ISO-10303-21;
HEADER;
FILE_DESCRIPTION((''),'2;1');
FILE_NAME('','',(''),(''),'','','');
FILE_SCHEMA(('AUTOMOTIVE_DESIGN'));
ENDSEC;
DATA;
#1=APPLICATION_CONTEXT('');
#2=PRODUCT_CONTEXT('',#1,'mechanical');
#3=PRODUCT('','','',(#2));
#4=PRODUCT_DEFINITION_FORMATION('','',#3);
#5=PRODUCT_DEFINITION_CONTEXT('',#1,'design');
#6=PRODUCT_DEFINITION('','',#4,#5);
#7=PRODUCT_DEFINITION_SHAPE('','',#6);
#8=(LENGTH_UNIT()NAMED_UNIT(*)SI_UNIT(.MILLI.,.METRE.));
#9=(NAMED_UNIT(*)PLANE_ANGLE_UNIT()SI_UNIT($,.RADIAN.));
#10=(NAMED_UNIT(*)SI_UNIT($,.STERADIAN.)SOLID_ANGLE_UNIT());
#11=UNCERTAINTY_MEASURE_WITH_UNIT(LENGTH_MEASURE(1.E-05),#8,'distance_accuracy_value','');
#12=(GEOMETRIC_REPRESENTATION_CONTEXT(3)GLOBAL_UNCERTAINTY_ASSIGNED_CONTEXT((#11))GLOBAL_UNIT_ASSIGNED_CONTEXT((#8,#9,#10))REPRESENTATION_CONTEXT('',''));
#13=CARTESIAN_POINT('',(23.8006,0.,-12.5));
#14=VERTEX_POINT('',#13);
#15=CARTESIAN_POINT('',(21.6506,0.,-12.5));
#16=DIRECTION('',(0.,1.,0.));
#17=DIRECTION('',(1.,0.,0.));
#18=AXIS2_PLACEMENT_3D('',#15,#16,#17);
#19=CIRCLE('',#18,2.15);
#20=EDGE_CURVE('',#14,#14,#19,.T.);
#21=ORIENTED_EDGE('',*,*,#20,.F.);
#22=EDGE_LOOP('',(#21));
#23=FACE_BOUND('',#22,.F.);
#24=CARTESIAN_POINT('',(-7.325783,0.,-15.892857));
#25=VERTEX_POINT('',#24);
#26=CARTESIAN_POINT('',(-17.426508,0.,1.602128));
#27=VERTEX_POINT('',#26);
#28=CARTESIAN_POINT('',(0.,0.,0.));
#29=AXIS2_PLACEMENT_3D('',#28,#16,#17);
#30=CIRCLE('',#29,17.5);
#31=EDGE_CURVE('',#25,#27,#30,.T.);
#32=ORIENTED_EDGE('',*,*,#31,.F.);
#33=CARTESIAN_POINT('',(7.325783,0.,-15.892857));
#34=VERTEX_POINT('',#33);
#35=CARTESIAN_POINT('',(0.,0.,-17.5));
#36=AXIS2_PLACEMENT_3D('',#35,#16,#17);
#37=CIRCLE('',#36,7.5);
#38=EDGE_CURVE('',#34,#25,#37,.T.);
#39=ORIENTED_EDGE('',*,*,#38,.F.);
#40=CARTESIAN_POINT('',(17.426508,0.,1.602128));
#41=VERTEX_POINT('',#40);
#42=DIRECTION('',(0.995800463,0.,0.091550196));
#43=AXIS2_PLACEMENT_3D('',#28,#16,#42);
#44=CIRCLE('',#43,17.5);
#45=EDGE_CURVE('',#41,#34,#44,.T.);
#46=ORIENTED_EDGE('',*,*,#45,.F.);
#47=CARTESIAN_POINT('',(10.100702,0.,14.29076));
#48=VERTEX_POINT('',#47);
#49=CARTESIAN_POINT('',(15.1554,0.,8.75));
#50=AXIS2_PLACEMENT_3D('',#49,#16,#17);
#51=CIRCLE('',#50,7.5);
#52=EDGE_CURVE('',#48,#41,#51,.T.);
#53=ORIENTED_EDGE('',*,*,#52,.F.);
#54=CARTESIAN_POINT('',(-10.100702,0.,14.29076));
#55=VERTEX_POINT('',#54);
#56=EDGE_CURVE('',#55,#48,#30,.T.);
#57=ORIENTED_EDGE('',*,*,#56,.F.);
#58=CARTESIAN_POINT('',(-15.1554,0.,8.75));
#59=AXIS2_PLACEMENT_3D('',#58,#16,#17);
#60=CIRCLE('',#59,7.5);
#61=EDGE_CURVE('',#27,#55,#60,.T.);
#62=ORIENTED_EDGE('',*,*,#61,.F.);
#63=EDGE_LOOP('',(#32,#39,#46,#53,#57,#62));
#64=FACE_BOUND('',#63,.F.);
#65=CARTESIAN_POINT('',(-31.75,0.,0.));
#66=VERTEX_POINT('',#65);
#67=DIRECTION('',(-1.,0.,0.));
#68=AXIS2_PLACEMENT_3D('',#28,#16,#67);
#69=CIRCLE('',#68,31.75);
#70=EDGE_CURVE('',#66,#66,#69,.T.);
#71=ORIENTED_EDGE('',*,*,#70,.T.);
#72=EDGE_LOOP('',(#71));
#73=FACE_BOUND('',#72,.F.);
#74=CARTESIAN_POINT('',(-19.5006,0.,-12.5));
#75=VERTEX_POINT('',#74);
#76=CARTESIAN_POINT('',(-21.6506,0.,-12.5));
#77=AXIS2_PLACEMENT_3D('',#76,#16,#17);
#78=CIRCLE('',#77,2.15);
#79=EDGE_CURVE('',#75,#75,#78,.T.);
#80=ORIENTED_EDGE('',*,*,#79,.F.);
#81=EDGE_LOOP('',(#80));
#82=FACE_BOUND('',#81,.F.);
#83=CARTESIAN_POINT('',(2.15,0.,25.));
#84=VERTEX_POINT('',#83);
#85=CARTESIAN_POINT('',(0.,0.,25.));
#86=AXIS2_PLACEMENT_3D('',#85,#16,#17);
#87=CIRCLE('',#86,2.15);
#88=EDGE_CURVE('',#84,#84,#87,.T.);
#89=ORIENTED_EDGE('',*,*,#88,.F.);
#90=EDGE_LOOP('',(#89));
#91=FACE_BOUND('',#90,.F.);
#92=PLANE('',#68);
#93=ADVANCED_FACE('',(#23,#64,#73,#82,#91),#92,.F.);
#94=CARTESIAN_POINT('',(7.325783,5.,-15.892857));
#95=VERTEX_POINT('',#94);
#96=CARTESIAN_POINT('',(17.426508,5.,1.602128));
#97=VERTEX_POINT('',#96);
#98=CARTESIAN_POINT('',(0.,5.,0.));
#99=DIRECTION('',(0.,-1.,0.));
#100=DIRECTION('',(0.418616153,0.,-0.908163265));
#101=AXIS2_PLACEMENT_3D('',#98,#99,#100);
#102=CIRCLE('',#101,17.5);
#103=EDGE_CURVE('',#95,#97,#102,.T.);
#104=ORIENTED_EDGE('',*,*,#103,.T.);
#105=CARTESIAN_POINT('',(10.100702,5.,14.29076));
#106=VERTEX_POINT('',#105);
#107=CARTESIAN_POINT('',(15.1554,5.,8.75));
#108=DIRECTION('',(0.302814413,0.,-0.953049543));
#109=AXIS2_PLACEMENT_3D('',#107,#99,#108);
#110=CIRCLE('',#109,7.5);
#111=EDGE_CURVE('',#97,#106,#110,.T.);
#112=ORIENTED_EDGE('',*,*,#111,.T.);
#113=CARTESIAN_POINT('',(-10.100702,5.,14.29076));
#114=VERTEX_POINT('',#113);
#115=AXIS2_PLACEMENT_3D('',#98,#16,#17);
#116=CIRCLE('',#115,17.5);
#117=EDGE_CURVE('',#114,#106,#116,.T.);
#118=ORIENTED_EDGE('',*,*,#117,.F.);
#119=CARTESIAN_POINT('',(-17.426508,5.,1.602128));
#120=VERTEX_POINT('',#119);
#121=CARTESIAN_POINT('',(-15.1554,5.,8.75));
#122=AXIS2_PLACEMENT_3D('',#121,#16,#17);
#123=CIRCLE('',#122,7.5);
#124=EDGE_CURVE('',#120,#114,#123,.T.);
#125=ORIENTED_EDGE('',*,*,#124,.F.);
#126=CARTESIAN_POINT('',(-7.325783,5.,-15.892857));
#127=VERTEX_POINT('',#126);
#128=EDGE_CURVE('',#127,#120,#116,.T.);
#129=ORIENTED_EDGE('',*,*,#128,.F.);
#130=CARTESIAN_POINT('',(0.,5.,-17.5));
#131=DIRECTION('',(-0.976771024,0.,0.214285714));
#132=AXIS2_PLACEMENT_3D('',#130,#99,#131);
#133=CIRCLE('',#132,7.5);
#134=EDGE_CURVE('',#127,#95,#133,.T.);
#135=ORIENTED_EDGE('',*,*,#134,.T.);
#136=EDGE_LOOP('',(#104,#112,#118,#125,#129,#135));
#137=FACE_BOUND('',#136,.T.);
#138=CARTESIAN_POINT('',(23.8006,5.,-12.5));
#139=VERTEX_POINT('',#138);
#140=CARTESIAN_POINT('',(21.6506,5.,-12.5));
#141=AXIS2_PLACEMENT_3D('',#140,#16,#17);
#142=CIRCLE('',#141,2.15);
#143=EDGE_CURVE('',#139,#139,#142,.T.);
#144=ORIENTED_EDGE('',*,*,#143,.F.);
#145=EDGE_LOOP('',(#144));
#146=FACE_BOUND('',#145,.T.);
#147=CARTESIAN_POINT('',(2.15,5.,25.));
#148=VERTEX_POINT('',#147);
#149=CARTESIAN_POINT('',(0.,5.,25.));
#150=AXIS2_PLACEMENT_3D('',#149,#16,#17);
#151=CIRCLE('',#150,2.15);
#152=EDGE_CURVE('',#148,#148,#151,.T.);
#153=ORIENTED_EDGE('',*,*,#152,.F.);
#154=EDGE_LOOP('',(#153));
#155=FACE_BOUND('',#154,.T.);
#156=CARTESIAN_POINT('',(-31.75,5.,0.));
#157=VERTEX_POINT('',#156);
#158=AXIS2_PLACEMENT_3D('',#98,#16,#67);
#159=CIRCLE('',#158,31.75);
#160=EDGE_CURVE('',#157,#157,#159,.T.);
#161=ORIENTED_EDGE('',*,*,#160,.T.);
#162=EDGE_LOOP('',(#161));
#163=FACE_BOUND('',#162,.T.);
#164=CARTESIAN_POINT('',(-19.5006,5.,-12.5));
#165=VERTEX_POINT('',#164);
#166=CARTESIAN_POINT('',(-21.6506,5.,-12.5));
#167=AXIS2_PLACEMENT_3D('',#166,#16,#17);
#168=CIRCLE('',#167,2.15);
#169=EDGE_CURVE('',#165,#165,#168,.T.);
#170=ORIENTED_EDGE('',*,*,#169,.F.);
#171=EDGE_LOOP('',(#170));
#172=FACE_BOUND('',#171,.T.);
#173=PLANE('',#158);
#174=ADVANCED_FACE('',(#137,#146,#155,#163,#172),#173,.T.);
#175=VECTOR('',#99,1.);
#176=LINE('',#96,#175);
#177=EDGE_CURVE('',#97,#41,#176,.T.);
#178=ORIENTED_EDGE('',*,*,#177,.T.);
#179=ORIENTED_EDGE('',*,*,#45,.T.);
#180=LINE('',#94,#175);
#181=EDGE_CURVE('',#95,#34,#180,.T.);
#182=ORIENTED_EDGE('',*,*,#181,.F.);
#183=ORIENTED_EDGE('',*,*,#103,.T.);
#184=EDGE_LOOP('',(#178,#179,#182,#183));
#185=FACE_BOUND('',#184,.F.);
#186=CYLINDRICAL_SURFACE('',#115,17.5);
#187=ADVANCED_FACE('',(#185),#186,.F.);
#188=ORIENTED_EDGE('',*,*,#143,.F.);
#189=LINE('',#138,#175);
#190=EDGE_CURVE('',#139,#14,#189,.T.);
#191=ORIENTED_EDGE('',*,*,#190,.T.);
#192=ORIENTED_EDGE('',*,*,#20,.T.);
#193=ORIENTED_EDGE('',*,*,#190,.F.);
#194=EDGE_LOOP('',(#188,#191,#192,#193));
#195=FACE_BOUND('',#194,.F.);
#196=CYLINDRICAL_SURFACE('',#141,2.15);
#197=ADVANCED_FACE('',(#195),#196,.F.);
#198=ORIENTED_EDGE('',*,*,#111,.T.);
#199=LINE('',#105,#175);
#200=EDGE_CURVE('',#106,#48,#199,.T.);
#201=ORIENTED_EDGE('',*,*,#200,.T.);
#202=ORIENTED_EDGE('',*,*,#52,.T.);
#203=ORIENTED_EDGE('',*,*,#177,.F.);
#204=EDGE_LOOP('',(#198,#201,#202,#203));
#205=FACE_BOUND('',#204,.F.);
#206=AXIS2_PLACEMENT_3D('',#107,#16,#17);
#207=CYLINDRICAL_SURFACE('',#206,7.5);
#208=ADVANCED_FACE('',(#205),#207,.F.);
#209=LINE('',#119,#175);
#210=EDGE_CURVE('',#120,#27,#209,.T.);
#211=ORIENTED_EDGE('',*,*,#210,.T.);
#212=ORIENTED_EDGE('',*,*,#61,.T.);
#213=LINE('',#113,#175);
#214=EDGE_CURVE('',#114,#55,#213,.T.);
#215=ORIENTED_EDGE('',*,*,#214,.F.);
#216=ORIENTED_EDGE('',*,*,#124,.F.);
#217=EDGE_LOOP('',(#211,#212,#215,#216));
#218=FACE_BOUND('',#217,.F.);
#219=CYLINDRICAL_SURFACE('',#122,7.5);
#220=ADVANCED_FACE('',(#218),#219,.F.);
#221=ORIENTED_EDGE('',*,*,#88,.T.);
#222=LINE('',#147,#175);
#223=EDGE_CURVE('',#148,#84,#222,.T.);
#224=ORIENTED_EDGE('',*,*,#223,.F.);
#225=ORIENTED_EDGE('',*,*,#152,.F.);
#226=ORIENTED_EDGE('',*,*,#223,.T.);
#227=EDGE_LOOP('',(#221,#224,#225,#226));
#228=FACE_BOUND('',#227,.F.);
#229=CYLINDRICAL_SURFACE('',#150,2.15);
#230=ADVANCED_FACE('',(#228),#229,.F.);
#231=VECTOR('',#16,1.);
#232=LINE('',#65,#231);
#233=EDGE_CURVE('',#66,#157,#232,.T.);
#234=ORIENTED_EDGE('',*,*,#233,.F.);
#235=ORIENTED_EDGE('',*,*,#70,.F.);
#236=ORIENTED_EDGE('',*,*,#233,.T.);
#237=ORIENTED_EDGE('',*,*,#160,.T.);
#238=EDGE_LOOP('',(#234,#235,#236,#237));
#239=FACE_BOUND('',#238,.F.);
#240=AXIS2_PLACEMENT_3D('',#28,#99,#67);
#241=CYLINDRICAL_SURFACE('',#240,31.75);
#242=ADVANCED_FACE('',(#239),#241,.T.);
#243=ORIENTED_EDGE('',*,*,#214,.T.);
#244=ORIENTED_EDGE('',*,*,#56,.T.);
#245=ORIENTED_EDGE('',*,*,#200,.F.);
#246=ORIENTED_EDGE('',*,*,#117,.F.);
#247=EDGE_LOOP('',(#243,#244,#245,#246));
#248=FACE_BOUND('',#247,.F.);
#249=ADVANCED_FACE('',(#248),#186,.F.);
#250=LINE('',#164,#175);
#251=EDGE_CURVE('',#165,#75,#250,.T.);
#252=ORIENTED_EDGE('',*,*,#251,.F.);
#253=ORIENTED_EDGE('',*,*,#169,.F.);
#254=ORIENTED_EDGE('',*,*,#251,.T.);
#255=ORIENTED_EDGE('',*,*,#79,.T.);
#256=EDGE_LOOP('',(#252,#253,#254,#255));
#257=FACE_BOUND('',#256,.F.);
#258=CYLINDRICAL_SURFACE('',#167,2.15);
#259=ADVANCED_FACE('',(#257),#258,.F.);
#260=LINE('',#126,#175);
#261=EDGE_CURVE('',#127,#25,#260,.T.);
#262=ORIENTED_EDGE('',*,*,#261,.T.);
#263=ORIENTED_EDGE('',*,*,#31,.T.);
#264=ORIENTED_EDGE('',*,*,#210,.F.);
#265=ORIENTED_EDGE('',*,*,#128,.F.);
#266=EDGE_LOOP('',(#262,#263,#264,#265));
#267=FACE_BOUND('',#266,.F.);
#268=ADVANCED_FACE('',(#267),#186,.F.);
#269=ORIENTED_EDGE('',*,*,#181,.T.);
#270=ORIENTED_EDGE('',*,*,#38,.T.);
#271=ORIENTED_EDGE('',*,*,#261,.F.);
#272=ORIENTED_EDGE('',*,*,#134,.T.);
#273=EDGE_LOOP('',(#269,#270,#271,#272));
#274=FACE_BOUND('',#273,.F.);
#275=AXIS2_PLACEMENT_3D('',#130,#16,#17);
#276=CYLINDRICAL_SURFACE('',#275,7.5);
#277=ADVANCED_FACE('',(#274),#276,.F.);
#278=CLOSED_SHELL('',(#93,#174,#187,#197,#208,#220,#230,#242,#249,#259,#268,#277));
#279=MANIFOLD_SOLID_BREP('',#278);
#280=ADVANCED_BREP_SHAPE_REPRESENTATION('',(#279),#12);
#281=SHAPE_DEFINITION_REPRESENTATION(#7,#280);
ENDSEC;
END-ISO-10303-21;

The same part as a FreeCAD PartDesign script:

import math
import FreeCAD as App
import Part
import Sketcher

V = App.Vector
Q = App.Units.Quantity

doc = App.newDocument("Part")
body = doc.addObject("PartDesign::Body", "Body")

sketch1 = doc.addObject("Sketcher::SketchObject", "Sketch")
body.addObject(sketch1)
sketch1.AttachmentSupport = (doc.XZ_Plane, [""])
sketch1.MapMode = "FlatFace"
sketch1.addGeometry(Part.Circle(V(0, 0, 0), V(0, 0, 1), 32), False)
sketch1.addConstraint(Sketcher.Constraint("Coincident", 0, 3, -1, 1))
sketch1.addConstraint(Sketcher.Constraint("Diameter", 0, Q("63.5 mm")))
pad1 = doc.addObject("PartDesign::Pad", "Pad")
body.addObject(pad1)
pad1.Profile = sketch1
pad1.Length = 5
pad1.Reversed = True

sketch2 = doc.addObject("Sketcher::SketchObject", "Sketch001")
body.addObject(sketch2)
sketch2.AttachmentSupport = (doc.XZ_Plane, [""])
sketch2.MapMode = "FlatFace"
sketch2.AttachmentOffset = App.Placement(V(0, 0, -5), App.Rotation())
sketch2.addGeometry(Part.Circle(V(0, 0, 0), V(0, 0, 1), 18), False)
sketch2.addConstraint(Sketcher.Constraint("Coincident", 0, 3, -1, 1))
sketch2.addConstraint(Sketcher.Constraint("Diameter", 0, Q("35 mm")))
pocket1 = doc.addObject("PartDesign::Pocket", "Pocket")
body.addObject(pocket1)
pocket1.Profile = sketch2
pocket1.Type = "ThroughAll"
pocket1.Reversed = True

sketch3 = doc.addObject("Sketcher::SketchObject", "Sketch002")
body.addObject(sketch3)
sketch3.AttachmentSupport = (doc.XZ_Plane, [""])
sketch3.MapMode = "FlatFace"
sketch3.AttachmentOffset = App.Placement(V(0, 0, -5), App.Rotation())
sketch3.addGeometry(Part.ArcOfCircle(Part.Circle(V(0, 0, 0), V(0, 0, 1), 18), math.radians(-115), math.radians(-65)), False)
sketch3.addGeometry(Part.ArcOfCircle(Part.Circle(V(0, -18, 0), V(0, 0, 1), 8), math.radians(168), math.radians(372)), False)
sketch3.addGeometry(Part.ArcOfCircle(Part.Circle(V(15, 9, 0), V(0, 0, 1), 8), math.radians(-72), math.radians(132)), False)
sketch3.addGeometry(Part.ArcOfCircle(Part.Circle(V(0, 0, 0), V(0, 0, 1), 18), math.radians(5), math.radians(55)), False)
sketch3.addGeometry(Part.ArcOfCircle(Part.Circle(V(0, 0, 0), V(0, 0, 1), 18), math.radians(125), math.radians(175)), False)
sketch3.addGeometry(Part.ArcOfCircle(Part.Circle(V(-15, 9, 0), V(0, 0, 1), 8), math.radians(48), math.radians(252)), False)
sketch3.addConstraint(Sketcher.Constraint("Coincident", 0, 1, 1, 1))
sketch3.addConstraint(Sketcher.Constraint("Coincident", 1, 2, 0, 2))
sketch3.addConstraint(Sketcher.Constraint("Coincident", 2, 1, 3, 1))
sketch3.addConstraint(Sketcher.Constraint("Coincident", 3, 2, 2, 2))
sketch3.addConstraint(Sketcher.Constraint("Coincident", 4, 1, 5, 1))
sketch3.addConstraint(Sketcher.Constraint("Coincident", 5, 2, 4, 2))
sketch3.addConstraint(Sketcher.Constraint("Coincident", 0, 3, -1, 1))
sketch3.addConstraint(Sketcher.Constraint("Coincident", 3, 3, -1, 1))
sketch3.addConstraint(Sketcher.Constraint("Coincident", 4, 3, -1, 1))
sketch3.addConstraint(Sketcher.Constraint("Equal", 1, 2))
sketch3.addConstraint(Sketcher.Constraint("Equal", 0, 3))
sketch3.addConstraint(Sketcher.Constraint("Equal", 3, 4))
sketch3.addConstraint(Sketcher.Constraint("Equal", 2, 5))
sketch3.addConstraint(Sketcher.Constraint("Symmetric", 2, 3, 5, 3, -2))
sketch3.addConstraint(Sketcher.Constraint("PointOnObject", 1, 3, -2))
sketch3.addConstraint(Sketcher.Constraint("Radius", 1, Q("7.5 mm")))
sketch3.addConstraint(Sketcher.Constraint("Radius", 0, Q("17.5 mm")))
sketch3.addConstraint(Sketcher.Constraint("DistanceY", 1, 3, -1, 1, Q("17.5 mm")))
sketch3.addConstraint(Sketcher.Constraint("DistanceY", -1, 1, 2, 3, Q("8.75 mm")))
sketch3.addConstraint(Sketcher.Constraint("DistanceX", 2, 3, 2, 1, Q("2.271 mm")))
pocket2 = doc.addObject("PartDesign::Pocket", "Pocket001")
body.addObject(pocket2)
pocket2.Profile = sketch3
pocket2.Type = "ThroughAll"
pocket2.Reversed = True

sketch4 = doc.addObject("Sketcher::SketchObject", "Sketch003")
body.addObject(sketch4)
sketch4.AttachmentSupport = (doc.XZ_Plane, [""])
sketch4.MapMode = "FlatFace"
sketch4.AttachmentOffset = App.Placement(V(0, 0, -5), App.Rotation())
sketch4.addGeometry(Part.Circle(V(21.7, -12.5, 0), V(0, 0, 1), 2.1), False)
sketch4.addGeometry(Part.Circle(V(-21.7, -12.5, 0), V(0, 0, 1), 2.1), False)
sketch4.addGeometry(Part.Circle(V(0, 25, 0), V(0, 0, 1), 2.1), False)
sketch4.addConstraint(Sketcher.Constraint("Equal", 0, 1))
sketch4.addConstraint(Sketcher.Constraint("Equal", 1, 2))
sketch4.addConstraint(Sketcher.Constraint("Symmetric", 0, 3, 1, 3, -2))
sketch4.addConstraint(Sketcher.Constraint("PointOnObject", 2, 3, -2))
sketch4.addConstraint(Sketcher.Constraint("Diameter", 0, Q("4.3 mm")))
sketch4.addConstraint(Sketcher.Constraint("DistanceY", -1, 1, 2, 3, Q("25 mm")))
sketch4.addConstraint(Sketcher.Constraint("DistanceY", 0, 3, -1, 1, Q("12.5 mm")))
sketch4.addConstraint(Sketcher.Constraint("DistanceX", -1, 1, 0, 3, Q("21.6506 mm")))
pocket3 = doc.addObject("PartDesign::Pocket", "Pocket002")
body.addObject(pocket3)
pocket3.Profile = sketch4
pocket3.Type = "ThroughAll"
pocket3.Reversed = True

doc.recompute()
